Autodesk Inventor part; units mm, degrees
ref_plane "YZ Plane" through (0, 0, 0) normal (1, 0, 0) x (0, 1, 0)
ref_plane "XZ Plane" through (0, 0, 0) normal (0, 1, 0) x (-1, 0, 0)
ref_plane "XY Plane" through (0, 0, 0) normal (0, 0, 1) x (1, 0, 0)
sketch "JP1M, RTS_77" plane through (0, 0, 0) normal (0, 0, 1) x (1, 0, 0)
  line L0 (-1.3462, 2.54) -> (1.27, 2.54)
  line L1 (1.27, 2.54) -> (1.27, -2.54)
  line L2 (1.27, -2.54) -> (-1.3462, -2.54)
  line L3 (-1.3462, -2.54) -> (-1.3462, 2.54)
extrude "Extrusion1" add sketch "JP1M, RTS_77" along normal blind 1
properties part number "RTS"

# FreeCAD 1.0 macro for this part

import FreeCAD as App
import Part
import Sketcher
from FreeCAD import Vector
Q = App.Units.Quantity


def add_polygon(sketch, points):
    """Adds a closed chain of lines whose ends are joined by coincident constraints."""
    first, n = sketch.GeometryCount, len(points)
    for a, b in zip(points, points[1:] + points[:1]):
        sketch.addGeometry(Part.LineSegment(App.Vector(*a, 0), App.Vector(*b, 0)), False)
    for i in range(n):
        sketch.addConstraint(Sketcher.Constraint("Coincident", first + i, 2, first + (i + 1) % n, 1))

doc = App.newDocument("Part")
body = doc.addObject("PartDesign::Body", "Body")

# Sketch on XY plane
sketch1 = body.newObject("Sketcher::SketchObject", "Sketch")
sketch1.AttachmentSupport = (doc.getObject("XY_Plane"), [""])
sketch1.MapMode = "FlatFace"
add_polygon(sketch1, [(1.3, 2.5), (-1.3, 2.5), (-1.3, -2.5), (1.3, -2.5)])  # lines 0-3
sketch1.addConstraint([
    Sketcher.Constraint("Horizontal", 0),
    Sketcher.Constraint("Vertical", 1),
    Sketcher.Constraint("Horizontal", 2),
    Sketcher.Constraint("Vertical", 3),
    Sketcher.Constraint("DistanceY", 1, 2, 1, 1, Q("0.2 in")),
    Sketcher.Constraint("DistanceY", -1, 1, 0, 2, Q("0.1 in")),
    Sketcher.Constraint("DistanceX", 0, 2, 0, 1, Q("0.103 in")),
    Sketcher.Constraint("DistanceX", -1, 1, 2, 2, Q("0.05 in")),
])
pad1 = body.newObject("PartDesign::Pad", "Pad")
pad1.Profile = sketch1
pad1.Length = 1

doc.recompute()
